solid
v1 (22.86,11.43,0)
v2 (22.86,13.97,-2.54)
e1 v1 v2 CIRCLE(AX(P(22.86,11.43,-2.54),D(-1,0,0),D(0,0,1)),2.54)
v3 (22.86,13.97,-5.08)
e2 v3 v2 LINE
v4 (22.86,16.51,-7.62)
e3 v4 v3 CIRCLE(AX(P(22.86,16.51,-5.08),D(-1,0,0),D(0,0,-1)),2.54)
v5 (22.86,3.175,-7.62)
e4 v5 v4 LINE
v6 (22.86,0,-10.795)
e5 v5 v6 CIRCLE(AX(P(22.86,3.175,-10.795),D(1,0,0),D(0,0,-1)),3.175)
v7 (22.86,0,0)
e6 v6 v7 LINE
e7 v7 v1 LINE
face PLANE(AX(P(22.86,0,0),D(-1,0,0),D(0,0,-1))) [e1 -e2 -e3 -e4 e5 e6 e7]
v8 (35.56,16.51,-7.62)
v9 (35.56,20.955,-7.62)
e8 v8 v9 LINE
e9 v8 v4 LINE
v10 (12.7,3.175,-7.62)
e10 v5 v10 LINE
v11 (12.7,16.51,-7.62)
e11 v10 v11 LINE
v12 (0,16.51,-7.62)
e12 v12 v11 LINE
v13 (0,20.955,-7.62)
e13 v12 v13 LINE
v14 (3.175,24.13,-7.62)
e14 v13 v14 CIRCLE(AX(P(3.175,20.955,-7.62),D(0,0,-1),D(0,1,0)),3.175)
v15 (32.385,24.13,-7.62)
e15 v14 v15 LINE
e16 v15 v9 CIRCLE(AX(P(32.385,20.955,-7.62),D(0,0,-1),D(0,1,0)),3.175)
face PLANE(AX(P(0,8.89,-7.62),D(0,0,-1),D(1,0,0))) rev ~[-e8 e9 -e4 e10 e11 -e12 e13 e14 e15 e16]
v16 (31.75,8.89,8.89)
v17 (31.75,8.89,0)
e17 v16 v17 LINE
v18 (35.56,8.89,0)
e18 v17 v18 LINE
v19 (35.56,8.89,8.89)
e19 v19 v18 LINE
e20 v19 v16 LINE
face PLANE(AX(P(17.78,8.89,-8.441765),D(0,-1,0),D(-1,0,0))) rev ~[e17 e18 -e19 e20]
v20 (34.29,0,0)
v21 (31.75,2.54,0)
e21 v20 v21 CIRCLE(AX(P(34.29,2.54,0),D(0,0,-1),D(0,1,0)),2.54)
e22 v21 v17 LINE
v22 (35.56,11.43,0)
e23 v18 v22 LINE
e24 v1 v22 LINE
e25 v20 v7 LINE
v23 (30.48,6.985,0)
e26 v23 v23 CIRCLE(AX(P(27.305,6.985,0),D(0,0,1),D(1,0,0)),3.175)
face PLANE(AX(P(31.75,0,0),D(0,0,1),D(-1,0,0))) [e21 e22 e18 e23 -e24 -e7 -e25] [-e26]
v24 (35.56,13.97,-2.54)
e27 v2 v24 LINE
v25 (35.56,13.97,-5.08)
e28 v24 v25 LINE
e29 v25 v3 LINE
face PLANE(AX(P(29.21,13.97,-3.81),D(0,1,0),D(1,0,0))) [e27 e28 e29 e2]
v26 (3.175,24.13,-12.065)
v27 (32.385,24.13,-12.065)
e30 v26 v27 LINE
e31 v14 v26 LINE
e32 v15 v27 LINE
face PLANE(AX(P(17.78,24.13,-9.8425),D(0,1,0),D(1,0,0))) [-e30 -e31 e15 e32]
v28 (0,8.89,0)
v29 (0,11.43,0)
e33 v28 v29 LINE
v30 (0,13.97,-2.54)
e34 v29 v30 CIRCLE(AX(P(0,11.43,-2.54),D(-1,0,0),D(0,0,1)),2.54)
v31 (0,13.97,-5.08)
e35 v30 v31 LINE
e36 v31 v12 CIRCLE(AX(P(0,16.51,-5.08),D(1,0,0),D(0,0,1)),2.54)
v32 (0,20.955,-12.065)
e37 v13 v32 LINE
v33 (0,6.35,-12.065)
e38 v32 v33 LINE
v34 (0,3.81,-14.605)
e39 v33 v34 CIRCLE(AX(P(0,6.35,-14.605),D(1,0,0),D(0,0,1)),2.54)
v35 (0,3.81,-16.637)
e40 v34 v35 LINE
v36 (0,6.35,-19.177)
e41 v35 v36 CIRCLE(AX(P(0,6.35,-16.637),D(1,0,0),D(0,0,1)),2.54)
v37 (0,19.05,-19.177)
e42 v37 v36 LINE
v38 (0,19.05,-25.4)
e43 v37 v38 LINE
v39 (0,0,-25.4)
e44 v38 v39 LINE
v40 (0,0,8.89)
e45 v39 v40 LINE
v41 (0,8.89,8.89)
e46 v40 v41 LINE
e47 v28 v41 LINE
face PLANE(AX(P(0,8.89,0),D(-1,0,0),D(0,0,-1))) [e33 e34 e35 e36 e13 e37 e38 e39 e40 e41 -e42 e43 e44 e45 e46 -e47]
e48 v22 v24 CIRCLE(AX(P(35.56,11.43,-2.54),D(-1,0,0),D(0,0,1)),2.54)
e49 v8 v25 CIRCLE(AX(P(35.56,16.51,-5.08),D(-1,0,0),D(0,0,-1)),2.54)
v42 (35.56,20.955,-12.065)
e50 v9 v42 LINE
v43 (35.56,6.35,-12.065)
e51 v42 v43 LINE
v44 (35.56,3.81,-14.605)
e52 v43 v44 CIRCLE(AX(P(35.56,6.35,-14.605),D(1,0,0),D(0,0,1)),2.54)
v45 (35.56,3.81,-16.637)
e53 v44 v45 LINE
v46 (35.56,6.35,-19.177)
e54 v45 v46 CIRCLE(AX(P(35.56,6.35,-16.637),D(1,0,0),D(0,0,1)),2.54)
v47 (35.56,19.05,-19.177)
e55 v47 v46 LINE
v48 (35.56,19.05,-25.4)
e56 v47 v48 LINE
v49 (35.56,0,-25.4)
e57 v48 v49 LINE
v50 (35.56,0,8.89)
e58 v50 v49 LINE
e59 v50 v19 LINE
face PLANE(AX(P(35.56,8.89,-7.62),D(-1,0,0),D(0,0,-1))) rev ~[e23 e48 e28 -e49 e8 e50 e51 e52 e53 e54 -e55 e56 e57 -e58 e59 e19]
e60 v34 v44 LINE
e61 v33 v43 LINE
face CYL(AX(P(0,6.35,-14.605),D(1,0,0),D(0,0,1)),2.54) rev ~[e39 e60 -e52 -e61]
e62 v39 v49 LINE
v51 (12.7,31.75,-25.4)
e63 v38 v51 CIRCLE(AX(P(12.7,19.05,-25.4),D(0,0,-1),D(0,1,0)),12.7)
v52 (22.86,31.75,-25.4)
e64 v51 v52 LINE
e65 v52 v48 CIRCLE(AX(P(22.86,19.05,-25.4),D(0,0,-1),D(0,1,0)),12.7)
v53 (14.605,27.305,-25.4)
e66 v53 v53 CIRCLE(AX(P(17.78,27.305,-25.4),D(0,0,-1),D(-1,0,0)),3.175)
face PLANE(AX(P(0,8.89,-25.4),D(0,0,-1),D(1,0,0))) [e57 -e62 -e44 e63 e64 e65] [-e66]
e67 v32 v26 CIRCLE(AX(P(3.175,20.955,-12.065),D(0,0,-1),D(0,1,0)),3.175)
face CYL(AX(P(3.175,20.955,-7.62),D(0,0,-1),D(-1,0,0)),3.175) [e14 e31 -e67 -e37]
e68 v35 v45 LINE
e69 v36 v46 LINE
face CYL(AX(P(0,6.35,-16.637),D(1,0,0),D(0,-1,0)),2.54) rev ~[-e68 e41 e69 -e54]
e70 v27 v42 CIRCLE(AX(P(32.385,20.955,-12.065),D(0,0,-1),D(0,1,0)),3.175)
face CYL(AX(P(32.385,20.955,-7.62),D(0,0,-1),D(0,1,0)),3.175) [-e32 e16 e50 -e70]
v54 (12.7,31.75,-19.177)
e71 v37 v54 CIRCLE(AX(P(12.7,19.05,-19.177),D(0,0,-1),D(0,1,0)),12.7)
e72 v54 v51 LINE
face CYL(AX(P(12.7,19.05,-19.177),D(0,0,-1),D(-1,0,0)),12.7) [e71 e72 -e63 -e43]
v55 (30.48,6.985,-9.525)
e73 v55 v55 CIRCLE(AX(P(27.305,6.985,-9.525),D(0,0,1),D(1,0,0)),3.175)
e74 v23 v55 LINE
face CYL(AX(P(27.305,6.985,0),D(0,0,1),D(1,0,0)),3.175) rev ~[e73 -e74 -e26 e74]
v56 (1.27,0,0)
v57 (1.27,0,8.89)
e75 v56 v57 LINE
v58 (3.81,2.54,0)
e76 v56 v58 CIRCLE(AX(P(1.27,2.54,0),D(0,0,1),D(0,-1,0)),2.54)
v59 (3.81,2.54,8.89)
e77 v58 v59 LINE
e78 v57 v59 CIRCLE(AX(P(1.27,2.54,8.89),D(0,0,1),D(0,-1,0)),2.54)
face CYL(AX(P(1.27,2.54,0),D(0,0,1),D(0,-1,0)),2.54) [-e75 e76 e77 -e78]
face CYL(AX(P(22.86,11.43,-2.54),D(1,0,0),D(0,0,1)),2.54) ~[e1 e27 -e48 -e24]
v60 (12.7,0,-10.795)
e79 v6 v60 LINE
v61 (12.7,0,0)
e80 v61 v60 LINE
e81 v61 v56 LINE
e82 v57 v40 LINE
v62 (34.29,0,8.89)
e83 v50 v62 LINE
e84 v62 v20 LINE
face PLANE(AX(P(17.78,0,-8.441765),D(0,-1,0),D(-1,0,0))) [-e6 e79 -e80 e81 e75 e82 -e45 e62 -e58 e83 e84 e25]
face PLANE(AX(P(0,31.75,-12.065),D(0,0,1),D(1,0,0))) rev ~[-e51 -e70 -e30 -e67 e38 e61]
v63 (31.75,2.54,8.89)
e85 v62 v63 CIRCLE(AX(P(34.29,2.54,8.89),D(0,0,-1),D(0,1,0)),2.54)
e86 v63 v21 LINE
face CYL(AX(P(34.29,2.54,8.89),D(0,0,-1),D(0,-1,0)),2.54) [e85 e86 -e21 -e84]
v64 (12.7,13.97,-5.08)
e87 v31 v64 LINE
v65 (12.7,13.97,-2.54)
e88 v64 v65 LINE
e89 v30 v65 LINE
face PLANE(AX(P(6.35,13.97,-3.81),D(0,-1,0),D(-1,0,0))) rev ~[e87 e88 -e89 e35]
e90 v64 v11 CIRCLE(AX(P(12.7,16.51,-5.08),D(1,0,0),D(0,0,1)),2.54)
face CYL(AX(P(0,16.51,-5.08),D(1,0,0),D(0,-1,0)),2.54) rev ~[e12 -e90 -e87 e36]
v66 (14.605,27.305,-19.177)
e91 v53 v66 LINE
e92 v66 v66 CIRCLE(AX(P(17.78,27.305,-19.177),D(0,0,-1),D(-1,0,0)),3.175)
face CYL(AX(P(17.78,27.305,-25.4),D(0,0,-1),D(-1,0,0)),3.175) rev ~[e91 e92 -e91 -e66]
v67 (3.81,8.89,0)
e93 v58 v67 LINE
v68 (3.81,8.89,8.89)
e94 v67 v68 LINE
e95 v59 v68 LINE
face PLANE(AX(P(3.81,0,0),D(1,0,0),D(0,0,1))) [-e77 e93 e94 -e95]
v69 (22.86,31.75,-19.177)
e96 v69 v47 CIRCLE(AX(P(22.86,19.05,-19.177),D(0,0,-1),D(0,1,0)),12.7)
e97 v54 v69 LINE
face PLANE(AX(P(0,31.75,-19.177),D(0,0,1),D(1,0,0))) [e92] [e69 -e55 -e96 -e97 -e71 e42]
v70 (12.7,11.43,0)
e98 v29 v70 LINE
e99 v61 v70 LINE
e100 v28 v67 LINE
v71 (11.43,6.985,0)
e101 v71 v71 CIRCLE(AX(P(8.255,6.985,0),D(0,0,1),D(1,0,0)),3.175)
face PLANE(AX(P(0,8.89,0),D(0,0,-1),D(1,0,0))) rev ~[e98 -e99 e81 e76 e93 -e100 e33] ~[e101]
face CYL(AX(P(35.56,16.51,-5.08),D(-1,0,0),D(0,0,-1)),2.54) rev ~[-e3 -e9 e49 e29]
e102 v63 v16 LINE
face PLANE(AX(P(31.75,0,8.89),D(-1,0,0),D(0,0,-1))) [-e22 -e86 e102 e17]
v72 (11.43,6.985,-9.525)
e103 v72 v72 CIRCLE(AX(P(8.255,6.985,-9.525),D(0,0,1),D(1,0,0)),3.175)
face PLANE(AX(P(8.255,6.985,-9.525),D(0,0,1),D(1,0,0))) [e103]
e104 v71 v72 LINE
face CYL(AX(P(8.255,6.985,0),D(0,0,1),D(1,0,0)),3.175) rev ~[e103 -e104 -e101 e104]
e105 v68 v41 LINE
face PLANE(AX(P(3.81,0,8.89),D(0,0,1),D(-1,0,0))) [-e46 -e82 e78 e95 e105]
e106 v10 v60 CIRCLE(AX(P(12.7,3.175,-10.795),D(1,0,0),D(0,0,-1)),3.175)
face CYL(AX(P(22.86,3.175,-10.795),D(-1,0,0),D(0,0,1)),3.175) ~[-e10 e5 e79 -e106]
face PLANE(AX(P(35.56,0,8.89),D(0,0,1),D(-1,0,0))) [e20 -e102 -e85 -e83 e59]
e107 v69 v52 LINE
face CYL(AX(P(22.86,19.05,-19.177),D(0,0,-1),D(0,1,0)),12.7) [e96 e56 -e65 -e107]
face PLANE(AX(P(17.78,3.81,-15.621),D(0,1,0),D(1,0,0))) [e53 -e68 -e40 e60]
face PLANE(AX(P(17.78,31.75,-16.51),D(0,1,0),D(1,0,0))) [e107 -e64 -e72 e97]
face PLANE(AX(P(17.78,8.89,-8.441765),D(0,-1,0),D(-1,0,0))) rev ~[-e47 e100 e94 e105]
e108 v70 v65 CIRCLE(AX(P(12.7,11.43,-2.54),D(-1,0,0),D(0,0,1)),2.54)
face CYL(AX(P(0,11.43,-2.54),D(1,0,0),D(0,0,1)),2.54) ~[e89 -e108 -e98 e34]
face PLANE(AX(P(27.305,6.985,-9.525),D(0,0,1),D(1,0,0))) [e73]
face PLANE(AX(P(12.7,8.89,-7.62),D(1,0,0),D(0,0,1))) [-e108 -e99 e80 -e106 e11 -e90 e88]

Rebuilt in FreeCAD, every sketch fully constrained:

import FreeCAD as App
import Part
import Sketcher
Q = App.Units.Quantity


def edges_at(feature, points):
    """Names of the edges that pass closest to the given points."""
    edges = feature.Shape.Edges
    near = lambda p: min(range(len(edges)), key=lambda i: edges[i].distToShape(Part.Vertex(*p))[0])
    return sorted({f"Edge{near(p) + 1}" for p in points})


def add_polygon(sketch, points):
    """Adds a closed chain of lines whose ends are joined by coincident constraints."""
    first, n = sketch.GeometryCount, len(points)
    for a, b in zip(points, points[1:] + points[:1]):
        sketch.addGeometry(Part.LineSegment(App.Vector(*a, 0), App.Vector(*b, 0)), False)
    for i in range(n):
        sketch.addConstraint(Sketcher.Constraint("Coincident", first + i, 2, first + (i + 1) % n, 1))

doc = App.newDocument("Part")
body = doc.addObject("PartDesign::Body", "Body")

# Sketch on XZ plane
sketch1 = body.newObject("Sketcher::SketchObject", "Sketch")
sketch1.AttachmentSupport = (doc.getObject("XZ_Plane"), [""])
sketch1.MapMode = "FlatFace"
add_polygon(sketch1, [(12.7, 0), (12.7, -7.62), (22.86, -7.62), (22.86, 0), (31.75, 0), (31.75, 8.89), (35.56, 8.89), (35.56, -25.4), (0, -25.4), (0, 8.89), (3.81, 8.89), (3.81, 0)])  # lines 0-11
sketch1.addConstraint([
    Sketcher.Constraint("Vertical", 0),
    Sketcher.Constraint("Horizontal", 1),
    Sketcher.Constraint("Vertical", 2),
    Sketcher.Constraint("Horizontal", 3),
    Sketcher.Constraint("Vertical", 4),
    Sketcher.Constraint("Horizontal", 5),
    Sketcher.Constraint("Vertical", 6),
    Sketcher.Constraint("Horizontal", 7),
    Sketcher.Constraint("Vertical", 8),
    Sketcher.Constraint("Horizontal", 9),
    Sketcher.Constraint("Vertical", 10),
    Sketcher.Constraint("Horizontal", 11),
    Sketcher.Constraint("PointOnObject", 2, 2, -1),
    Sketcher.Constraint("PointOnObject", 7, 2, -2),
    Sketcher.Constraint("PointOnObject", 10, 2, -1),
    Sketcher.Constraint("Horizontal", 5, 2, 8, 2),
    Sketcher.Constraint("Equal", 5, 9),
    Sketcher.Constraint("Equal", 3, 11),
    Sketcher.Constraint("Equal", 11, 4),
    Sketcher.Constraint("DistanceX", 1, 1, 1, 2, Q("0.4 in")),
    Sketcher.Constraint("DistanceX", 7, 2, 7, 1, Q("1.4 in")),
    Sketcher.Constraint("DistanceY", 0, 2, 0, 1, Q("0.3 in")),
    Sketcher.Constraint("DistanceY", 6, 2, -1, 1, Q("1 in")),
    Sketcher.Constraint("DistanceX", 3, 1, 3, 2, Q("0.35 in")),
])
pad1 = body.newObject("PartDesign::Pad", "Pad")
pad1.Profile = sketch1
pad1.Length = Q("0.35 in")
pad1.Reversed = True

# Sketch on XZ plane
sketch2 = body.newObject("Sketcher::SketchObject", "Sketch001")
sketch2.AttachmentSupport = (doc.getObject("XZ_Plane"), [""])
sketch2.MapMode = "FlatFace"
sketch2.AttachmentOffset = App.Placement(App.Vector(0, 0, -0.35 * 25.4), App.Rotation())
add_polygon(sketch2, [(0, -25.4), (0, -7.62), (35.56, -7.62), (35.56, -25.4)])  # lines 0-3
sketch2.addConstraint([
    Sketcher.Constraint("Vertical", 0),
    Sketcher.Constraint("Horizontal", 1),
    Sketcher.Constraint("Vertical", 2),
    Sketcher.Constraint("Horizontal", 3),
    Sketcher.Constraint("PointOnObject", 0, 2, -2),
    Sketcher.Constraint("DistanceX", 1, 1, 1, 2, Q("1.4 in")),
    Sketcher.Constraint("DistanceY", 0, 1, 0, 2, Q("0.7 in")),
    Sketcher.Constraint("DistanceY", 2, 2, -1, 1, Q("1 in")),
])
pad2 = body.newObject("PartDesign::Pad", "Pad001")
pad2.Profile = sketch2
pad2.Length = Q("0.9 in")
pad2.Reversed = True

# Sketch on XZ plane
sketch3 = body.newObject("Sketcher::SketchObject", "Sketch002")
sketch3.AttachmentSupport = (doc.getObject("XZ_Plane"), [""])
sketch3.MapMode = "FlatFace"
sketch3.AttachmentOffset = App.Placement(App.Vector(0, 0, -1.25 * 25.4), App.Rotation())
add_polygon(sketch3, [(0, -19.177), (0, -12.065), (35.56, -12.065), (35.56, -19.177)])  # lines 0-3
sketch3.addConstraint([
    Sketcher.Constraint("Vertical", 0),
    Sketcher.Constraint("Horizontal", 1),
    Sketcher.Constraint("Vertical", 2),
    Sketcher.Constraint("Horizontal", 3),
    Sketcher.Constraint("PointOnObject", 0, 2, -2),
    Sketcher.Constraint("DistanceX", 1, 1, 1, 2, Q("1.4 in")),
    Sketcher.Constraint("DistanceY", 0, 1, 0, 2, Q("0.28 in")),
    Sketcher.Constraint("DistanceY", 0, 2, -1, 1, Q("0.475 in")),
])
pocket1 = body.newObject("PartDesign::Pocket", "Pocket")
pocket1.Profile = sketch3
pocket1.Length = Q("1.1 in")
pocket1.Reversed = True

# Sketch on XZ plane
sketch4 = body.newObject("Sketcher::SketchObject", "Sketch003")
sketch4.AttachmentSupport = (doc.getObject("XZ_Plane"), [""])
sketch4.MapMode = "FlatFace"
sketch4.AttachmentOffset = App.Placement(App.Vector(0, 0, -1.25 * 25.4), App.Rotation())
add_polygon(sketch4, [(0, -12.065), (0, -7.62), (35.56, -7.62), (35.56, -12.065)])  # lines 0-3
sketch4.addConstraint([
    Sketcher.Constraint("Vertical", 0),
    Sketcher.Constraint("Horizontal", 1),
    Sketcher.Constraint("Vertical", 2),
    Sketcher.Constraint("Horizontal", 3),
    Sketcher.Constraint("PointOnObject", 0, 2, -2),
    Sketcher.Constraint("DistanceX", 1, 1, 1, 2, Q("1.4 in")),
    Sketcher.Constraint("DistanceY", 0, 2, -1, 1, Q("0.3 in")),
    Sketcher.Constraint("DistanceY", 0, 1, 0, 2, Q("0.175 in")),
])
pocket2 = body.newObject("PartDesign::Pocket", "Pocket001")
pocket2.Profile = sketch4
pocket2.Length = Q("0.3 in")
pocket2.Reversed = True

# Sketch on XY plane
sketch5 = body.newObject("Sketcher::SketchObject", "Sketch004")
sketch5.AttachmentSupport = (doc.getObject("XY_Plane"), [""])
sketch5.MapMode = "FlatFace"
sketch5.AttachmentOffset = App.Placement(App.Vector(0, 0, -1 * 25.4), App.Rotation())
sketch5.addGeometry(Part.Circle(App.Vector(17.78, 27.305, 0), App.Vector(0, 0, 1), 3.175), False)
sketch5.addConstraint([
    Sketcher.Constraint("Diameter", 0, Q("0.25 in")),
    Sketcher.Constraint("DistanceX", -1, 1, 0, 3, Q("0.7 in")),
    Sketcher.Constraint("DistanceY", -1, 1, 0, 3, Q("1.075 in")),
])
pocket3 = body.newObject("PartDesign::Pocket", "Pocket002")
pocket3.Profile = sketch5
pocket3.Length = Q("0.25 in")
pocket3.Reversed = True
doc.recompute()

fillet = body.newObject("PartDesign::Fillet", "Fillet")
fillet.Base = (pocket3, edges_at(pocket3, [(0, 31.75, -22.288), (35.56, 31.75, -22.288)]))
fillet.Radius = Q("0.5 in")
doc.recompute()

fillet2 = body.newObject("PartDesign::Fillet", "Fillet001")
fillet2.Base = (fillet, edges_at(fillet, [(0, 24.13, -9.842), (35.56, 24.13, -9.842)]))
fillet2.Radius = Q("0.125 in")
doc.recompute()

fillet3 = body.newObject("PartDesign::Fillet", "Fillet002")
fillet3.Base = (fillet2, edges_at(fillet2, [(17.78, 0, -7.62)]))
fillet3.Radius = Q("0.125 in")
doc.recompute()

fillet4 = body.newObject("PartDesign::Fillet", "Fillet003")
fillet4.Base = (fillet3, edges_at(fillet3, [
    (3.81, 0, 4.445),
    (31.75, 0, 4.445),
    (17.78, 3.81, -19.177),
    (17.78, 3.81, -12.065),
]))
fillet4.Radius = Q("0.1 in")

# Sketch on XZ plane
sketch6 = body.newObject("Sketcher::SketchObject", "Sketch005")
sketch6.AttachmentSupport = (doc.getObject("XZ_Plane"), [""])
sketch6.MapMode = "FlatFace"
sketch6.AttachmentOffset = App.Placement(App.Vector(0, 0, -0.35 * 25.4), App.Rotation())
add_polygon(sketch6, [(0, 0), (12.7, 0), (12.7, -7.62), (0, -7.62)])  # lines 0-3
add_polygon(sketch6, [(35.56, -7.62), (22.86, -7.62), (22.86, 0), (35.56, 0)])  # lines 4-7
sketch6.addConstraint([
    Sketcher.Constraint("Horizontal", 0),
    Sketcher.Constraint("Vertical", 1),
    Sketcher.Constraint("Horizontal", 2),
    Sketcher.Constraint("Vertical", 3),
    Sketcher.Constraint("Horizontal", 4),
    Sketcher.Constraint("Vertical", 5),
    Sketcher.Constraint("Horizontal", 6),
    Sketcher.Constraint("Vertical", 7),
    Sketcher.Constraint("Coincident", 3, 2, -1, 1),
    Sketcher.Constraint("PointOnObject", 5, 2, -1),
    Sketcher.Constraint("Horizontal", 2, 2, 4, 2),
    Sketcher.Constraint("Equal", 2, 4),
    Sketcher.Constraint("DistanceX", 0, 1, 0, 2, Q("0.5 in")),
    Sketcher.Constraint("DistanceY", 1, 2, 1, 1, Q("0.3 in")),
    Sketcher.Constraint("DistanceX", -1, 1, 4, 2, Q("0.9 in")),
])
pad3 = body.newObject("PartDesign::Pad", "Pad002")
pad3.Profile = sketch6
pad3.Length = Q("0.2 in")
pad3.Reversed = True

# Sketch on XY plane
sketch7 = body.newObject("Sketcher::SketchObject", "Sketch006")
sketch7.AttachmentSupport = (doc.getObject("XY_Plane"), [""])
sketch7.MapMode = "FlatFace"
sketch7.addGeometry([
    Part.Circle(App.Vector(8.255, 6.985, 0), App.Vector(0, 0, 1), 3.175),
    Part.Circle(App.Vector(27.305, 6.985, 0), App.Vector(0, 0, 1), 3.175),
], False)
sketch7.addConstraint([
    Sketcher.Constraint("Equal", 0, 1),
    Sketcher.Constraint("Horizontal", 0, 3, 1, 3),
    Sketcher.Constraint("Diameter", 0, Q("0.25 in")),
    Sketcher.Constraint("DistanceX", 0, 3, 1, 3, Q("0.75 in")),
    Sketcher.Constraint("DistanceX", -1, 1, 0, 3, Q("0.325 in")),
    Sketcher.Constraint("DistanceY", -1, 1, 0, 3, Q("0.275 in")),
])
pocket4 = body.newObject("PartDesign::Pocket", "Pocket003")
pocket4.Profile = sketch7
pocket4.Length = Q("0.375 in")
doc.recompute()

fillet5 = body.newObject("PartDesign::Fillet", "Fillet004")
fillet5.Base = (pocket4, edges_at(pocket4, [
    (6.35, 13.97, 0),
    (6.35, 13.97, -7.62),
    (29.21, 13.97, 0),
    (29.21, 13.97, -7.62),
]))
fillet5.Radius = Q("0.1 in")

doc.recompute()
